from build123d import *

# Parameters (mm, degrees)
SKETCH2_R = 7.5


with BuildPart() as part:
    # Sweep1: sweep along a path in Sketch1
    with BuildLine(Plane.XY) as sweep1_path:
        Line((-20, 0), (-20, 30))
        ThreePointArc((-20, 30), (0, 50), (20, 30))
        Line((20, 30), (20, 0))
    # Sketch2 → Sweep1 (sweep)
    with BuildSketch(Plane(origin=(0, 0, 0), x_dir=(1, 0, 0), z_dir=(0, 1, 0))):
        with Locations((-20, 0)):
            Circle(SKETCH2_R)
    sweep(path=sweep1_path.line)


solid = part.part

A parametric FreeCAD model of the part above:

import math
import FreeCAD as App
import Part
import Sketcher
from FreeCAD import Vector
Q = App.Units.Quantity

doc = App.newDocument("Part")
params = doc.addObject("Spreadsheet::Sheet", "Params")
for row, (alias, value) in enumerate([
    ("sketch1_diameter", "15 mm"),
    ("sketch2_radius", "20 mm"),
    ("sketch2_height", "30 mm"),
], start=1):
    params.set(f"A{row}", alias)
    params.set(f"B{row}", "=" + value)
    params.setAlias(f"B{row}", alias)

body = doc.addObject("PartDesign::Body", "Body")

sketch1 = body.newObject("Sketcher::SketchObject", "Sketch")
sketch1.AttachmentSupport = (doc.getObject("XZ_Plane"), [""])
sketch1.MapMode = "FlatFace"
sketch1.addGeometry(Part.Circle(Vector(-20, 0, 0), Vector(0, 0, 1), 8), False)
sketch1.addConstraint(Sketcher.Constraint("PointOnObject", 0, 3, -1))
sketch1.addConstraint(Sketcher.Constraint("Diameter", 0, Q("15 mm")))
sketch1.addConstraint(Sketcher.Constraint("DistanceX", 0, 3, -1, 1, Q("20 mm")))
sketch1.setExpression("Constraints[1]", "Params.sketch1_diameter")

sketch2 = body.newObject("Sketcher::SketchObject", "Sketch001")
sketch2.AttachmentSupport = (doc.getObject("XY_Plane"), [""])
sketch2.MapMode = "FlatFace"
sketch2.addGeometry(Part.LineSegment(Vector(-20, 0, 0), Vector(-20, 30, 0)), False)
sketch2.addGeometry(Part.ArcOfCircle(Part.Circle(Vector(0, 30, 0), Vector(0, 0, 1), 20), math.radians(0), math.radians(180)), False)
sketch2.addGeometry(Part.LineSegment(Vector(20, 30, 0), Vector(20, 0, 0)), False)
sketch2.addConstraint(Sketcher.Constraint("Tangent", 0, 2, 1, 2))
sketch2.addConstraint(Sketcher.Constraint("Tangent", 1, 1, 2, 1))
sketch2.addConstraint(Sketcher.Constraint("Vertical", 0))
sketch2.addConstraint(Sketcher.Constraint("Vertical", 2))
sketch2.addConstraint(Sketcher.Constraint("Symmetric", 0, 1, 2, 2, -1, 1))
sketch2.addConstraint(Sketcher.Constraint("PointOnObject", 0, 1, -1))
sketch2.addConstraint(Sketcher.Constraint("Radius", 1, Q("20 mm")))
sketch2.addConstraint(Sketcher.Constraint("DistanceY", 0, 1, 0, 2, Q("30 mm")))
sketch2.setExpression("Constraints[6]", "Params.sketch2_radius")
sketch2.setExpression("Constraints[7]", "Params.sketch2_height")
doc.recompute()

additivepipe = body.newObject("PartDesign::AdditivePipe", "AdditivePipe")
additivepipe.Profile = sketch1
additivepipe.Spine = (sketch2, ["Edge1", "Edge2", "Edge3"])

doc.recompute()
